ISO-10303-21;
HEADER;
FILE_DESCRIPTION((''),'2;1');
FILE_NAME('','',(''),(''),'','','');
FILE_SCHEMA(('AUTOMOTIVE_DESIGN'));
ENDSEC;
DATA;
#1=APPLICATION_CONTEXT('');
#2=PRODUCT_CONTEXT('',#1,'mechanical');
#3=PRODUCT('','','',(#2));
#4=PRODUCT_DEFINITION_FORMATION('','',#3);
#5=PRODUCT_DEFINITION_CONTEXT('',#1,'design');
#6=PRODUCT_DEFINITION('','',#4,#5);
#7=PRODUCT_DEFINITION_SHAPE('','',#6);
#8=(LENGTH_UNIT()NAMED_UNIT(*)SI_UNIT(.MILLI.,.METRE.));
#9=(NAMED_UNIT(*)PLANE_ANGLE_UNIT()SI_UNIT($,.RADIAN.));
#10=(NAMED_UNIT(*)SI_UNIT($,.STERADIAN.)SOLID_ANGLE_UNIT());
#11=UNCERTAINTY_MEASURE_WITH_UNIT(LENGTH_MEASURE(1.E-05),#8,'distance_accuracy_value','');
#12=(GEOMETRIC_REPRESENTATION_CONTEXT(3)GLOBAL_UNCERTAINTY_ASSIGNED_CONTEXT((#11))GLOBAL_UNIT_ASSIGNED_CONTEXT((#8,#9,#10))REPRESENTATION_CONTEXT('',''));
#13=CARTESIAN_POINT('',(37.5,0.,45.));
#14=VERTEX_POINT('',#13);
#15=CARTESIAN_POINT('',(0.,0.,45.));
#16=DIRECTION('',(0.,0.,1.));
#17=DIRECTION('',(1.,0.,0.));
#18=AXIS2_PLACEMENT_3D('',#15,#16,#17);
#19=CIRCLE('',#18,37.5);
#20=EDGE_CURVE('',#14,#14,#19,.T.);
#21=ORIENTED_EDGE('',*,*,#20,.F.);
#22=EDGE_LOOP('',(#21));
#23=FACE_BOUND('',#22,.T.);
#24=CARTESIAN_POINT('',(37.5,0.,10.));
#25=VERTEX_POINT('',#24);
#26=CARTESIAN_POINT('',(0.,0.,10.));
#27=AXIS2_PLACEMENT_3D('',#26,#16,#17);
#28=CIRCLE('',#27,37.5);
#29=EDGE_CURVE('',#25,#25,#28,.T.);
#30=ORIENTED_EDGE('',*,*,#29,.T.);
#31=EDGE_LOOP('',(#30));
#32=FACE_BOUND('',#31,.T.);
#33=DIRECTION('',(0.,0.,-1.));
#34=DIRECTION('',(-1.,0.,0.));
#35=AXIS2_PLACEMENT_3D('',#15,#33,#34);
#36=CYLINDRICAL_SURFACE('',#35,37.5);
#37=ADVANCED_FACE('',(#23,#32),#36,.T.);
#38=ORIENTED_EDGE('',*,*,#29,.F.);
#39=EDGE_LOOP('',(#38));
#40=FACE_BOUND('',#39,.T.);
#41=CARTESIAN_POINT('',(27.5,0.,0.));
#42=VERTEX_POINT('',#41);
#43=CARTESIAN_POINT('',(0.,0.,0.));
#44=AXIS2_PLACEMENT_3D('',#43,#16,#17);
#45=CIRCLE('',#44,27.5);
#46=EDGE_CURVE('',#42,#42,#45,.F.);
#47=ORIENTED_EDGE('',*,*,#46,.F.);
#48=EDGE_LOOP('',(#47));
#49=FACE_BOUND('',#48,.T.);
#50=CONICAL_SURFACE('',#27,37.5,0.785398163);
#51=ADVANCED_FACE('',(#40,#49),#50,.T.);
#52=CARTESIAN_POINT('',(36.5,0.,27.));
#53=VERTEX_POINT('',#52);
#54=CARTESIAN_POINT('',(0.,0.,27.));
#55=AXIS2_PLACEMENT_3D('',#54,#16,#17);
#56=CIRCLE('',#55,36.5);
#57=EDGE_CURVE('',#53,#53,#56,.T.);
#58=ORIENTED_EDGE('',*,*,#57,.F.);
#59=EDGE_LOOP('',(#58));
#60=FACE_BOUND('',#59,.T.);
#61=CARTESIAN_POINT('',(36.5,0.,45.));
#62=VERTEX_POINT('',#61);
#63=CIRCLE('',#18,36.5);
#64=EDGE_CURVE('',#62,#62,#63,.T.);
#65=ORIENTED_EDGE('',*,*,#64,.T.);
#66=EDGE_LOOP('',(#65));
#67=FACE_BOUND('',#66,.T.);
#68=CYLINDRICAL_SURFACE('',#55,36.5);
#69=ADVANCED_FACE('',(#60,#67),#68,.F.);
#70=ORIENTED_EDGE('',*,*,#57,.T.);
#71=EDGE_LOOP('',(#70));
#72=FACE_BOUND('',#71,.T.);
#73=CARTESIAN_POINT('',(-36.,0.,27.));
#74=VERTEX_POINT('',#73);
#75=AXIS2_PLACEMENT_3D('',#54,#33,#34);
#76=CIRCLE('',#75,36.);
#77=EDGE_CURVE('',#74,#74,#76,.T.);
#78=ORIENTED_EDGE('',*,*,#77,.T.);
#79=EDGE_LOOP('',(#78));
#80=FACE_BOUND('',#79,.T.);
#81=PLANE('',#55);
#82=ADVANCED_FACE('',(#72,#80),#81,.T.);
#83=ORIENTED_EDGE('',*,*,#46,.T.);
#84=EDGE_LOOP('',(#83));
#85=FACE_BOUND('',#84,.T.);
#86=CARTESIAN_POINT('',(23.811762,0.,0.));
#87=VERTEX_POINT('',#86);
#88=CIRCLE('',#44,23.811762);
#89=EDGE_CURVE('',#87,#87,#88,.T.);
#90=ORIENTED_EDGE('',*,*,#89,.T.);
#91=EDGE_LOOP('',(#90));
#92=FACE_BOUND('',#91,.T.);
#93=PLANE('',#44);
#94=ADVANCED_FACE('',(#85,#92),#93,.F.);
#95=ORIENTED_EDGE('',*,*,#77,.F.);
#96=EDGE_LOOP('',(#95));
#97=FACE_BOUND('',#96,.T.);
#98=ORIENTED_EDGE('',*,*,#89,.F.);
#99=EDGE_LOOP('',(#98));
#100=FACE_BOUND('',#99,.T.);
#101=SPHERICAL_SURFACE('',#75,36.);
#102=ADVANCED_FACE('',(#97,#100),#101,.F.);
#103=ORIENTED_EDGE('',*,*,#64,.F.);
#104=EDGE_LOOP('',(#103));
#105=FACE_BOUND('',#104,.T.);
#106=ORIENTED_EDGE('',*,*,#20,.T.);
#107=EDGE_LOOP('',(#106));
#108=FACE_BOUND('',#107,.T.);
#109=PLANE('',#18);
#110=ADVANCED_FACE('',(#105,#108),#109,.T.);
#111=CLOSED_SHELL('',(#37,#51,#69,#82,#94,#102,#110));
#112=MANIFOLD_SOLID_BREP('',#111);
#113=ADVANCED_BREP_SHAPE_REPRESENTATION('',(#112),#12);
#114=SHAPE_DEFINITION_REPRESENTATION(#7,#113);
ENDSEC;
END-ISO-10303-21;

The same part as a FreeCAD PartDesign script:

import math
import FreeCAD as App
import Part
import Sketcher
from FreeCAD import Vector


def edges_at(feature, points):
    """Names of the edges that pass closest to the given points."""
    edges = feature.Shape.Edges
    near = lambda p: min(range(len(edges)), key=lambda i: edges[i].distToShape(Part.Vertex(*p))[0])
    return sorted({f"Edge{near(p) + 1}" for p in points})

doc = App.newDocument("Part")
body = doc.addObject("PartDesign::Body", "Body")

# Sketch on XY plane
sketch1 = body.newObject("Sketcher::SketchObject", "Sketch")
sketch1.AttachmentSupport = (doc.getObject("XY_Plane"), [""])
sketch1.MapMode = "FlatFace"
sketch1.addGeometry(Part.Circle(Vector(0, 0, 0), Vector(0, 0, 1), 38), False)
sketch1.addConstraint(Sketcher.Constraint("Coincident", 0, 3, -1, 1))
sketch1.addConstraint(Sketcher.Constraint("Diameter", 0, 75.0))
pad1 = body.newObject("PartDesign::Pad", "Pad")
pad1.Profile = sketch1
pad1.Length = 45

# Sketch on XY plane
sketch2 = body.newObject("Sketcher::SketchObject", "Sketch001")
sketch2.AttachmentSupport = (doc.getObject("XY_Plane"), [""])
sketch2.MapMode = "FlatFace"
sketch2.AttachmentOffset = App.Placement(Vector(0, 0, 45), App.Rotation())
sketch2.addGeometry(Part.Circle(Vector(0, 0, 0), Vector(0, 0, 1), 36), False)
sketch2.addConstraint(Sketcher.Constraint("Coincident", 0, 3, -1, 1))
sketch2.addConstraint(Sketcher.Constraint("Diameter", 0, 73.0))
pocket1 = body.newObject("PartDesign::Pocket", "Pocket")
pocket1.Profile = sketch2
pocket1.Length = 18

# Sketch on XY plane
sketch3 = body.newObject("Sketcher::SketchObject", "Sketch002")
sketch3.AttachmentSupport = (doc.getObject("XY_Plane"), [""])
sketch3.MapMode = "FlatFace"
sketch3.AttachmentOffset = App.Placement(Vector(0, 0, 27), App.Rotation())
sketch3.addGeometry(Part.LineSegment(Vector(-36, 0, 0), Vector(36, 0, 0)), False)
sketch3.addGeometry(Part.ArcOfCircle(Part.Circle(Vector(0, 0, 0), Vector(0, 0, 1), 36), math.radians(0), math.radians(180)), False)
sketch3.addConstraint(Sketcher.Constraint("Coincident", 0, 1, 1, 2))
sketch3.addConstraint(Sketcher.Constraint("Coincident", 1, 1, 0, 2))
sketch3.addConstraint(Sketcher.Constraint("Horizontal", 0))
sketch3.addConstraint(Sketcher.Constraint("Coincident", 1, 3, -1, 1))
sketch3.addConstraint(Sketcher.Constraint("PointOnObject", 0, 1, -1))
sketch3.addConstraint(Sketcher.Constraint("Radius", 1, 36.0))
groove = body.newObject("PartDesign::Groove", "Groove")
groove.Profile = sketch3
groove.ReferenceAxis = (sketch3, ["H_Axis"])
groove.Angle = 180
groove.Reversed = True
doc.recompute()

chamfer = body.newObject("PartDesign::Chamfer", "Chamfer")
chamfer.Base = (groove, edges_at(groove, [(-37.5, 0, 0)]))
chamfer.Size = 10

doc.recompute()
